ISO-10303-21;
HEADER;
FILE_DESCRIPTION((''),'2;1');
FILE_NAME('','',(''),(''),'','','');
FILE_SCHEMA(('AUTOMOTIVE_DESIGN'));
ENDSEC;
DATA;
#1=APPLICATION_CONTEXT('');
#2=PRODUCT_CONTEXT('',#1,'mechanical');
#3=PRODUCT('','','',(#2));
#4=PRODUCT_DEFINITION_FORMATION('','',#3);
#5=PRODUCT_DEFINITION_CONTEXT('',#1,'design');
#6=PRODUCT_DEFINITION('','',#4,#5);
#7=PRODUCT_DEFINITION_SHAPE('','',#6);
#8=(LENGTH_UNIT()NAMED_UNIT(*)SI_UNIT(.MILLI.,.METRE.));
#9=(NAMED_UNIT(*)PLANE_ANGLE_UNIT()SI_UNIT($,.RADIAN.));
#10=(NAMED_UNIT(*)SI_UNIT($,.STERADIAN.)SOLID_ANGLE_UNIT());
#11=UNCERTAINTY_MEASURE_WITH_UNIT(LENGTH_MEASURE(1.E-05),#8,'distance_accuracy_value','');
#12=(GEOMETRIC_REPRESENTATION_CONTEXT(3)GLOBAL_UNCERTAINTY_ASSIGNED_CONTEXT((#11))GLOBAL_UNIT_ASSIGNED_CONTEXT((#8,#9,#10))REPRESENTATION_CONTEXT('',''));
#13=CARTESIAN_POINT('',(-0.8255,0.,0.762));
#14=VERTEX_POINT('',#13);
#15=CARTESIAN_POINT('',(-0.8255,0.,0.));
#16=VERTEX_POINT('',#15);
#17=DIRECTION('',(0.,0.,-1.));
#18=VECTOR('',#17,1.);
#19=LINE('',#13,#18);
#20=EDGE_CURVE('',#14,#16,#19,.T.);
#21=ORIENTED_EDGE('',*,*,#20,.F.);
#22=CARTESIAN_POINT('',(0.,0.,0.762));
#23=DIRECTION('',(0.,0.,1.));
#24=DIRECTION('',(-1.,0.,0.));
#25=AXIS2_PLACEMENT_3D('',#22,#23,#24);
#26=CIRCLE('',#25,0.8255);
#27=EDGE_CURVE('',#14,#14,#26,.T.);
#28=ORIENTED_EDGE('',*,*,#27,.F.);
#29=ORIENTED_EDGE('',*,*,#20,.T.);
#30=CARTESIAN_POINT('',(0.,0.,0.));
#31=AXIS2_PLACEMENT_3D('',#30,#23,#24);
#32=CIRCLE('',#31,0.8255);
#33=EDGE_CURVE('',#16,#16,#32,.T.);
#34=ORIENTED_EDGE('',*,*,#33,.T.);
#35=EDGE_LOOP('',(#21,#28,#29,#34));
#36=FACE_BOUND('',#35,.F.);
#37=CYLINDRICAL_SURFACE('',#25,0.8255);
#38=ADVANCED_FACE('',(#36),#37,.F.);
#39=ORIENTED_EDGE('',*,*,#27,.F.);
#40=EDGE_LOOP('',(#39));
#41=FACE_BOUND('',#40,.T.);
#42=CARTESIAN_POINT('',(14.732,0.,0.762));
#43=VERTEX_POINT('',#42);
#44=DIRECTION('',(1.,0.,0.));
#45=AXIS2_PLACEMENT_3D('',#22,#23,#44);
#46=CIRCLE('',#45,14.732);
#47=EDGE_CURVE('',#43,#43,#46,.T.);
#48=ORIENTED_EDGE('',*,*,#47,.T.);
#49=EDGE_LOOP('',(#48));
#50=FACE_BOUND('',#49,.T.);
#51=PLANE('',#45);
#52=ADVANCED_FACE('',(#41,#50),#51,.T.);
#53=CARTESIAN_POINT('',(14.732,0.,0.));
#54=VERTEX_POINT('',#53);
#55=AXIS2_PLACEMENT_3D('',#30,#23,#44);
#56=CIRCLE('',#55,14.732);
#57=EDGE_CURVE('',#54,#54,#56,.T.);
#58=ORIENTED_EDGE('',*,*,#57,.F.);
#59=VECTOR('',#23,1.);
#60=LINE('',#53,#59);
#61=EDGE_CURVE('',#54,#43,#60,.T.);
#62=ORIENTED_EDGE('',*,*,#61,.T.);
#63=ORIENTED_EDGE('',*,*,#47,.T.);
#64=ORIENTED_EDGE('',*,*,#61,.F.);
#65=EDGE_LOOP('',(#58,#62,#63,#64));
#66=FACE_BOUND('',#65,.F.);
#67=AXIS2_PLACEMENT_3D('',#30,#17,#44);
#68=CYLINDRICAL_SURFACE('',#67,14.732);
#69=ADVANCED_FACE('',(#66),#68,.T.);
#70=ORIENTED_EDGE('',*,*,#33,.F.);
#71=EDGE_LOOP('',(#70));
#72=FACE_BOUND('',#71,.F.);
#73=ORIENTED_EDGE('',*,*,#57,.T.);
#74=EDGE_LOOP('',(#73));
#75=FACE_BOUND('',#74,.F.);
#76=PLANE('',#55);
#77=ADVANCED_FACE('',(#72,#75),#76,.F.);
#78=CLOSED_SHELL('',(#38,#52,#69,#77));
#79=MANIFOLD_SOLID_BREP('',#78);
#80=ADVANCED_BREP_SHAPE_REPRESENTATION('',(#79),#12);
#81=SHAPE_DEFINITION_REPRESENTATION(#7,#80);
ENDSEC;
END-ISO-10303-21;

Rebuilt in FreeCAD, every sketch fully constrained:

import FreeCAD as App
import Part
import Sketcher
Q = App.Units.Quantity

doc = App.newDocument("Part")
body = doc.addObject("PartDesign::Body", "Body")

sketch1 = doc.addObject("Sketcher::SketchObject", "Sketch")
body.addObject(sketch1)
sketch1.AttachmentSupport = (doc.XY_Plane, [""])
sketch1.MapMode = "FlatFace"
sketch1.addGeometry(Part.Circle(App.Vector(0, 0, 0), App.Vector(0, 0, 1), 15), False)
sketch1.addConstraint([
    Sketcher.Constraint("Coincident", 0, 3, -1, 1),
    Sketcher.Constraint("Diameter", 0, Q("1.16 in")),
])
pad1 = doc.addObject("PartDesign::Pad", "Pad")
body.addObject(pad1)
pad1.Profile = sketch1
pad1.Length = Q("0.03 in")

sketch2 = doc.addObject("Sketcher::SketchObject", "Sketch001")
body.addObject(sketch2)
sketch2.AttachmentSupport = (doc.XY_Plane, [""])
sketch2.MapMode = "FlatFace"
sketch2.AttachmentOffset = App.Placement(App.Vector(0, 0, 0.03 * 25.4), App.Rotation())
sketch2.addGeometry(Part.Circle(App.Vector(0, 0, 0), App.Vector(0, 0, 1), 0.8), False)
sketch2.addConstraint([
    Sketcher.Constraint("Coincident", 0, 3, -1, 1),
    Sketcher.Constraint("Diameter", 0, Q("0.065 in")),
])
pocket1 = doc.addObject("PartDesign::Pocket", "Pocket")
body.addObject(pocket1)
pocket1.Profile = sketch2
pocket1.Length = Q("0.1 in")

doc.recompute()
